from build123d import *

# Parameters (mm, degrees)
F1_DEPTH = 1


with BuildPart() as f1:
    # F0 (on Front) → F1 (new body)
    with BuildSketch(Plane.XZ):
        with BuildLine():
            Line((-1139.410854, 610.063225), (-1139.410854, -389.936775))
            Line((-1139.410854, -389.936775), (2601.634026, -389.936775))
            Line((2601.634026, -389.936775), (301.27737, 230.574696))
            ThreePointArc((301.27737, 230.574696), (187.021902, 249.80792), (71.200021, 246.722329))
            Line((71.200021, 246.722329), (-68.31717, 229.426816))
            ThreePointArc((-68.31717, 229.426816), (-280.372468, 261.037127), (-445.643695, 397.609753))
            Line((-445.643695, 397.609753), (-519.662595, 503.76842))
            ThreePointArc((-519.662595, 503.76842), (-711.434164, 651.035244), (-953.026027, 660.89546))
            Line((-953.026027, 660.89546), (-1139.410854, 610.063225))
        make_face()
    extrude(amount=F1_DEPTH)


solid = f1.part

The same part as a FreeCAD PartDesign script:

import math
import FreeCAD as App
import Part
import Sketcher

doc = App.newDocument("Part")
body = doc.addObject("PartDesign::Body", "Body")

# Sketch on XZ plane
sketch1 = body.newObject("Sketcher::SketchObject", "Sketch")
sketch1.AttachmentSupport = (doc.getObject("XZ_Plane"), [""])
sketch1.MapMode = "FlatFace"
sketch1.addGeometry([
    Part.LineSegment(App.Vector(-1139.410854, 610.063225, 0), App.Vector(-1139.410854, -389.936775, 0)),  # 0
    Part.LineSegment(App.Vector(-1139.410854, -389.936775, 0), App.Vector(2601.634026, -389.936775, 0)),  # 1
    Part.LineSegment(App.Vector(2601.634026, -389.936775, 0), App.Vector(301.27737, 230.574696, 0)),  # 2
    Part.ArcOfCircle(Part.Circle(App.Vector(145.015135, -348.719779, 0), App.Vector(0, 0, 1), 599.999979), math.radians(74.904002), math.radians(97.066727)),  # 3
    Part.LineSegment(App.Vector(71.200021, 246.722329, 0), App.Vector(-68.31717, 229.426816, 0)),  # 4
    Part.ArcOfCircle(Part.Circle(App.Vector(-117.527243, 626.388237, 0), App.Vector(0, 0, 1), 400.000002), math.radians(-145.113947), math.radians(-82.933273)),  # 5
    Part.LineSegment(App.Vector(-445.643695, 397.609753, 0), App.Vector(-519.662595, 503.76842, 0)),  # 6
    Part.ArcOfCircle(Part.Circle(App.Vector(-847.779046, 274.989937, 0), App.Vector(0, 0, 1), 399.999999), math.radians(34.886053), math.radians(105.255122)),  # 7
    Part.LineSegment(App.Vector(-953.026027, 660.89546, 0), App.Vector(-1139.410854, 610.063225, 0)),  # 8
], False)
sketch1.addConstraint([
    Sketcher.Constraint("Coincident", 0, 2, 1, 1),
    Sketcher.Constraint("Coincident", 1, 2, 2, 1),
    Sketcher.Constraint("Tangent", 2, 2, 3, 1),
    Sketcher.Constraint("Tangent", 3, 2, 4, 1),
    Sketcher.Constraint("Tangent", 4, 2, 5, 2),
    Sketcher.Constraint("Tangent", 5, 1, 6, 1),
    Sketcher.Constraint("Tangent", 6, 2, 7, 1),
    Sketcher.Constraint("Tangent", 7, 2, 8, 1),
    Sketcher.Constraint("Coincident", 8, 2, 0, 1),
    Sketcher.Constraint("Vertical", 0),
    Sketcher.Constraint("Horizontal", 1),
    Sketcher.Constraint("Radius", 5, 400.000002),
    Sketcher.Constraint("Radius", 7, 399.999999),
    Sketcher.Constraint("DistanceY", 0, 2, 0, 1, 1000.0),
    Sketcher.Constraint("Radius", 3, 599.999979),
    Sketcher.Constraint("DistanceX", 1, 1, 1, 2, 3741.04488),
    Sketcher.Constraint("DistanceY", 7, 3, 5, 3, 351.3983),
    Sketcher.Constraint("DistanceX", 6, 2, 5, 1, 74.0189),
    Sketcher.Constraint("Distance", 4, 140.585139),
    Sketcher.Constraint("DistanceY", 3, 3, -1, 1, 348.719779),
    Sketcher.Constraint("DistanceX", -1, 1, 2, 2, 301.27737),
    Sketcher.Constraint("DistanceX", 4, 2, -1, 1, 68.31717),
    Sketcher.Constraint("DistanceY", -1, 1, 6, 2, 503.76842),
    Sketcher.Constraint("DistanceX", 0, 2, 7, 3, 291.631808),
])
pad1 = body.newObject("PartDesign::Pad", "Pad")
pad1.Profile = sketch1
pad1.Length = 1

doc.recompute()
